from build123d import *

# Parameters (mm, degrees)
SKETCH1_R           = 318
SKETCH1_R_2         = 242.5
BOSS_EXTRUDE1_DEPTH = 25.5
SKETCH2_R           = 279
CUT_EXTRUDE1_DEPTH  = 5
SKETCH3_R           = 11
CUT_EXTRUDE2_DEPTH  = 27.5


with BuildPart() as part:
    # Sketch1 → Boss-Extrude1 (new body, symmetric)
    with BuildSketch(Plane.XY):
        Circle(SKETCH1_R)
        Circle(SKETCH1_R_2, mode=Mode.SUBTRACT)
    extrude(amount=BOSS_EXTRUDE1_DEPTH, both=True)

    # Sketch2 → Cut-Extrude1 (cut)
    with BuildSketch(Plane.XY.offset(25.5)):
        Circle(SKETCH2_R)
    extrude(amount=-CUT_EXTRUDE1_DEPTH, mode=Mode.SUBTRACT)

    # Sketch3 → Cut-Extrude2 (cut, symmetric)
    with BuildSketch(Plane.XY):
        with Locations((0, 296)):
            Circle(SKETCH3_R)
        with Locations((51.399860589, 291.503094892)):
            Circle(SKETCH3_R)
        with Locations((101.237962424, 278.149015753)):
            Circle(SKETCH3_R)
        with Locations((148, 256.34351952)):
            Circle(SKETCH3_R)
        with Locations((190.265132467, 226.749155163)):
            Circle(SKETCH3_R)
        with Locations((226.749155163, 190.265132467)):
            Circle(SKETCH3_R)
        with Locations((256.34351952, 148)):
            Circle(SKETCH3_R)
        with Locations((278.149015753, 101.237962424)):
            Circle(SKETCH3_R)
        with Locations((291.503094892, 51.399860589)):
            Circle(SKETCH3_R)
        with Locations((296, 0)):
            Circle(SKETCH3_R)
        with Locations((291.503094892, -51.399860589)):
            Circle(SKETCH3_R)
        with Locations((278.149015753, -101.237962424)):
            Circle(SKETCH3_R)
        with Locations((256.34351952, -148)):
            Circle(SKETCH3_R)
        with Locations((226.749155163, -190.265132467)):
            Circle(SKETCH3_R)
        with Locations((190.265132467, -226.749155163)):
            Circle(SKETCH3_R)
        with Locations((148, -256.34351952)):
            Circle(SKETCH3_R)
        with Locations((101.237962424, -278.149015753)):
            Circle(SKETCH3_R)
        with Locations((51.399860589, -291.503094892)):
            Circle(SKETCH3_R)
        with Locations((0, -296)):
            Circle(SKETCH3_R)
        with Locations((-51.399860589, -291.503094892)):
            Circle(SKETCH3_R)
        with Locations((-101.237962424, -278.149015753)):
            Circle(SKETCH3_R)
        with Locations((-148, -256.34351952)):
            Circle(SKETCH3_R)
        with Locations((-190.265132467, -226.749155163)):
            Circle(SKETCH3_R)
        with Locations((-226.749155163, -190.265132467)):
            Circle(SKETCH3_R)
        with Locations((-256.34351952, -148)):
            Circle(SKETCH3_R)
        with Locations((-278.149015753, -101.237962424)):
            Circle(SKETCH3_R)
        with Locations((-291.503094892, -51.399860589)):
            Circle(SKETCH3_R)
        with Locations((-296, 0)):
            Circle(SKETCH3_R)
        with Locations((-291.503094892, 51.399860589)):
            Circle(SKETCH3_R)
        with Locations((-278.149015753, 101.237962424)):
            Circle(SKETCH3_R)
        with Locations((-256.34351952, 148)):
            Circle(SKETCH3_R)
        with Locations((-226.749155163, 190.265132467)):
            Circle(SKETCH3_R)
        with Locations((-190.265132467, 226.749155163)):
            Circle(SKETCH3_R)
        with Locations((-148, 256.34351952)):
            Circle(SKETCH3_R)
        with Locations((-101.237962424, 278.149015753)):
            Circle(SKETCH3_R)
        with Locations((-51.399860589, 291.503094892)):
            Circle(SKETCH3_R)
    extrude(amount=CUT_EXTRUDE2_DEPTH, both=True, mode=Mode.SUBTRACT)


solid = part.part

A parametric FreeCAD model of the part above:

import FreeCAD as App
import Part
import Sketcher
from FreeCAD import Vector

doc = App.newDocument("Part")
params = doc.addObject("Spreadsheet::Sheet", "Params")
for row, (alias, value) in enumerate([
    ("sketch1_diameter", "636 mm"),
    ("sketch1_diameter2", "485 mm"),
    ("pad1_length", "51 mm"),
    ("sketch2_diameter", "558 mm"),
    ("pocket1_length", "5 mm"),
    ("sketch3_diameter", "22 mm"),
    ("pocket2_length", "55 mm"),
], start=1):
    params.set(f"A{row}", alias)
    params.set(f"B{row}", "=" + value)
    params.setAlias(f"B{row}", alias)

body = doc.addObject("PartDesign::Body", "Body")

# Sketch on XY plane
sketch1 = body.newObject("Sketcher::SketchObject", "Sketch")
sketch1.AttachmentSupport = (doc.getObject("XY_Plane"), [""])
sketch1.MapMode = "FlatFace"
sketch1.addGeometry(Part.Circle(Vector(0, 0, 0), Vector(0, 0, 1), 318), False)
sketch1.addGeometry(Part.Circle(Vector(0, 0, 0), Vector(0, 0, 1), 242), False)
sketch1.addConstraint(Sketcher.Constraint("Coincident", 0, 3, -1, 1))
sketch1.addConstraint(Sketcher.Constraint("Coincident", 1, 3, -1, 1))
sketch1.addConstraint(Sketcher.Constraint("Diameter", 0, 636.0))
sketch1.addConstraint(Sketcher.Constraint("Diameter", 1, 485.0))
sketch1.setExpression("Constraints[2]", "Params.sketch1_diameter")
sketch1.setExpression("Constraints[3]", "Params.sketch1_diameter2")
pad1 = body.newObject("PartDesign::Pad", "Pad")
pad1.Profile = sketch1
pad1.setExpression("Length", "Params.pad1_length")
pad1.Midplane = True

# Sketch on XY plane
sketch2 = body.newObject("Sketcher::SketchObject", "Sketch001")
sketch2.AttachmentSupport = (doc.getObject("XY_Plane"), [""])
sketch2.MapMode = "FlatFace"
sketch2.AttachmentOffset = App.Placement(Vector(0, 0, 25.5), App.Rotation())
sketch2.addGeometry(Part.Circle(Vector(0, 0, 0), Vector(0, 0, 1), 279), False)
sketch2.addConstraint(Sketcher.Constraint("Coincident", 0, 3, -1, 1))
sketch2.addConstraint(Sketcher.Constraint("Diameter", 0, 558.0))
sketch2.setExpression("Constraints[1]", "Params.sketch2_diameter")
pocket1 = body.newObject("PartDesign::Pocket", "Pocket")
pocket1.Profile = sketch2
pocket1.setExpression("Length", "Params.pocket1_length")

# Sketch on XY plane
sketch3 = body.newObject("Sketcher::SketchObject", "Sketch002")
sketch3.AttachmentSupport = (doc.getObject("XY_Plane"), [""])
sketch3.MapMode = "FlatFace"
sketch3.addGeometry(Part.Circle(Vector(0, 296, 0), Vector(0, 0, 1), 11), False)
sketch3.addGeometry(Part.Circle(Vector(51, 292, 0), Vector(0, 0, 1), 11), False)
sketch3.addGeometry(Part.Circle(Vector(101, 278, 0), Vector(0, 0, 1), 11), False)
sketch3.addGeometry(Part.Circle(Vector(148, 256, 0), Vector(0, 0, 1), 11), False)
sketch3.addGeometry(Part.Circle(Vector(190, 227, 0), Vector(0, 0, 1), 11), False)
sketch3.addGeometry(Part.Circle(Vector(227, 190, 0), Vector(0, 0, 1), 11), False)
sketch3.addGeometry(Part.Circle(Vector(256, 148, 0), Vector(0, 0, 1), 11), False)
sketch3.addGeometry(Part.Circle(Vector(278, 101, 0), Vector(0, 0, 1), 11), False)
sketch3.addGeometry(Part.Circle(Vector(292, 51, 0), Vector(0, 0, 1), 11), False)
sketch3.addGeometry(Part.Circle(Vector(296, 0, 0), Vector(0, 0, 1), 11), False)
sketch3.addGeometry(Part.Circle(Vector(292, -51, 0), Vector(0, 0, 1), 11), False)
sketch3.addGeometry(Part.Circle(Vector(278, -101, 0), Vector(0, 0, 1), 11), False)
sketch3.addGeometry(Part.Circle(Vector(256, -148, 0), Vector(0, 0, 1), 11), False)
sketch3.addGeometry(Part.Circle(Vector(227, -190, 0), Vector(0, 0, 1), 11), False)
sketch3.addGeometry(Part.Circle(Vector(190, -227, 0), Vector(0, 0, 1), 11), False)
sketch3.addGeometry(Part.Circle(Vector(148, -256, 0), Vector(0, 0, 1), 11), False)
sketch3.addGeometry(Part.Circle(Vector(101, -278, 0), Vector(0, 0, 1), 11), False)
sketch3.addGeometry(Part.Circle(Vector(51, -292, 0), Vector(0, 0, 1), 11), False)
sketch3.addGeometry(Part.Circle(Vector(0, -296, 0), Vector(0, 0, 1), 11), False)
sketch3.addGeometry(Part.Circle(Vector(-51, -292, 0), Vector(0, 0, 1), 11), False)
sketch3.addGeometry(Part.Circle(Vector(-101, -278, 0), Vector(0, 0, 1), 11), False)
sketch3.addGeometry(Part.Circle(Vector(-148, -256, 0), Vector(0, 0, 1), 11), False)
sketch3.addGeometry(Part.Circle(Vector(-190, -227, 0), Vector(0, 0, 1), 11), False)
sketch3.addGeometry(Part.Circle(Vector(-227, -190, 0), Vector(0, 0, 1), 11), False)
sketch3.addGeometry(Part.Circle(Vector(-256, -148, 0), Vector(0, 0, 1), 11), False)
sketch3.addGeometry(Part.Circle(Vector(-278, -101, 0), Vector(0, 0, 1), 11), False)
sketch3.addGeometry(Part.Circle(Vector(-292, -51, 0), Vector(0, 0, 1), 11), False)
sketch3.addGeometry(Part.Circle(Vector(-296, 0, 0), Vector(0, 0, 1), 11), False)
sketch3.addGeometry(Part.Circle(Vector(-292, 51, 0), Vector(0, 0, 1), 11), False)
sketch3.addGeometry(Part.Circle(Vector(-278, 101, 0), Vector(0, 0, 1), 11), False)
sketch3.addGeometry(Part.Circle(Vector(-256, 148, 0), Vector(0, 0, 1), 11), False)
sketch3.addGeometry(Part.Circle(Vector(-227, 190, 0), Vector(0, 0, 1), 11), False)
sketch3.addGeometry(Part.Circle(Vector(-190, 227, 0), Vector(0, 0, 1), 11), False)
sketch3.addGeometry(Part.Circle(Vector(-148, 256, 0), Vector(0, 0, 1), 11), False)
sketch3.addGeometry(Part.Circle(Vector(-101, 278, 0), Vector(0, 0, 1), 11), False)
sketch3.addGeometry(Part.Circle(Vector(-51, 292, 0), Vector(0, 0, 1), 11), False)
sketch3.addConstraint(Sketcher.Constraint("Equal", 0, 1))
sketch3.addConstraint(Sketcher.Constraint("Equal", 1, 2))
sketch3.addConstraint(Sketcher.Constraint("Equal", 2, 3))
sketch3.addConstraint(Sketcher.Constraint("Equal", 3, 4))
sketch3.addConstraint(Sketcher.Constraint("Equal", 4, 5))
sketch3.addConstraint(Sketcher.Constraint("Equal", 5, 6))
sketch3.addConstraint(Sketcher.Constraint("Equal", 6, 7))
sketch3.addConstraint(Sketcher.Constraint("Equal", 7, 8))
sketch3.addConstraint(Sketcher.Constraint("Equal", 8, 9))
sketch3.addConstraint(Sketcher.Constraint("Equal", 9, 10))
sketch3.addConstraint(Sketcher.Constraint("Equal", 10, 11))
sketch3.addConstraint(Sketcher.Constraint("Equal", 11, 12))
sketch3.addConstraint(Sketcher.Constraint("Equal", 12, 13))
sketch3.addConstraint(Sketcher.Constraint("Equal", 13, 14))
sketch3.addConstraint(Sketcher.Constraint("Equal", 14, 15))
sketch3.addConstraint(Sketcher.Constraint("Equal", 15, 16))
sketch3.addConstraint(Sketcher.Constraint("Equal", 16, 17))
sketch3.addConstraint(Sketcher.Constraint("Equal", 17, 18))
sketch3.addConstraint(Sketcher.Constraint("Equal", 18, 19))
sketch3.addConstraint(Sketcher.Constraint("Equal", 19, 20))
sketch3.addConstraint(Sketcher.Constraint("Equal", 20, 21))
sketch3.addConstraint(Sketcher.Constraint("Equal", 21, 22))
sketch3.addConstraint(Sketcher.Constraint("Equal", 22, 23))
sketch3.addConstraint(Sketcher.Constraint("Equal", 23, 24))
sketch3.addConstraint(Sketcher.Constraint("Equal", 24, 25))
sketch3.addConstraint(Sketcher.Constraint("Equal", 25, 26))
sketch3.addConstraint(Sketcher.Constraint("Equal", 26, 27))
sketch3.addConstraint(Sketcher.Constraint("Equal", 27, 28))
sketch3.addConstraint(Sketcher.Constraint("Equal", 28, 29))
sketch3.addConstraint(Sketcher.Constraint("Equal", 29, 30))
sketch3.addConstraint(Sketcher.Constraint("Equal", 30, 31))
sketch3.addConstraint(Sketcher.Constraint("Equal", 31, 32))
sketch3.addConstraint(Sketcher.Constraint("Equal", 32, 33))
sketch3.addConstraint(Sketcher.Constraint("Equal", 33, 34))
sketch3.addConstraint(Sketcher.Constraint("Equal", 34, 35))
sketch3.addConstraint(Sketcher.Constraint("Symmetric", 0, 3, 18, 3, -1, 1))
sketch3.addConstraint(Sketcher.Constraint("Symmetric", 1, 3, 19, 3, -1, 1))
sketch3.addConstraint(Sketcher.Constraint("Symmetric", 2, 3, 20, 3, -1, 1))
sketch3.addConstraint(Sketcher.Constraint("Symmetric", 3, 3, 21, 3, -1, 1))
sketch3.addConstraint(Sketcher.Constraint("Symmetric", 4, 3, 22, 3, -1, 1))
sketch3.addConstraint(Sketcher.Constraint("Symmetric", 5, 3, 23, 3, -1, 1))
sketch3.addConstraint(Sketcher.Constraint("Symmetric", 6, 3, 24, 3, -1, 1))
sketch3.addConstraint(Sketcher.Constraint("Symmetric", 7, 3, 25, 3, -1, 1))
sketch3.addConstraint(Sketcher.Constraint("Symmetric", 8, 3, 26, 3, -1, 1))
sketch3.addConstraint(Sketcher.Constraint("Symmetric", 9, 3, 27, 3, -1, 1))
sketch3.addConstraint(Sketcher.Constraint("Symmetric", 10, 3, 28, 3, -1, 1))
sketch3.addConstraint(Sketcher.Constraint("Symmetric", 11, 3, 29, 3, -1, 1))
sketch3.addConstraint(Sketcher.Constraint("Symmetric", 12, 3, 30, 3, -1, 1))
sketch3.addConstraint(Sketcher.Constraint("Symmetric", 13, 3, 31, 3, -1, 1))
sketch3.addConstraint(Sketcher.Constraint("Symmetric", 14, 3, 32, 3, -1, 1))
sketch3.addConstraint(Sketcher.Constraint("Symmetric", 15, 3, 33, 3, -1, 1))
sketch3.addConstraint(Sketcher.Constraint("Symmetric", 16, 3, 34, 3, -1, 1))
sketch3.addConstraint(Sketcher.Constraint("Symmetric", 17, 3, 35, 3, -1, 1))
sketch3.addConstraint(Sketcher.Constraint("Symmetric", 17, 3, 19, 3, -2))
sketch3.addConstraint(Sketcher.Constraint("Symmetric", 16, 3, 20, 3, -2))
sketch3.addConstraint(Sketcher.Constraint("Symmetric", 15, 3, 21, 3, -2))
sketch3.addConstraint(Sketcher.Constraint("Symmetric", 14, 3, 22, 3, -2))
sketch3.addConstraint(Sketcher.Constraint("Symmetric", 13, 3, 23, 3, -2))
sketch3.addConstraint(Sketcher.Constraint("Symmetric", 12, 3, 24, 3, -2))
sketch3.addConstraint(Sketcher.Constraint("Symmetric", 11, 3, 25, 3, -2))
sketch3.addConstraint(Sketcher.Constraint("Symmetric", 10, 3, 26, 3, -2))
sketch3.addConstraint(Sketcher.Constraint("PointOnObject", 0, 3, -2))
sketch3.addConstraint(Sketcher.Constraint("PointOnObject", 9, 3, -1))
sketch3.addConstraint(Sketcher.Constraint("Diameter", 0, 22.0))
sketch3.addConstraint(Sketcher.Constraint("DistanceY", -1, 1, 0, 3, 296.0))
sketch3.addConstraint(Sketcher.Constraint("DistanceX", -1, 1, 3, 3, 148.0))
sketch3.addConstraint(Sketcher.Constraint("DistanceY", -1, 1, 6, 3, 148.0))
sketch3.addConstraint(Sketcher.Constraint("DistanceX", -1, 1, 9, 3, 296.0))
sketch3.addConstraint(Sketcher.Constraint("DistanceX", 1, 3, 2, 3, 49.838102))
sketch3.addConstraint(Sketcher.Constraint("DistanceY", 8, 3, 7, 3, 49.838102))
sketch3.addConstraint(Sketcher.Constraint("DistanceX", -1, 1, 1, 3, 51.399861))
sketch3.addConstraint(Sketcher.Constraint("DistanceY", -1, 1, 3, 3, 256.34352))
sketch3.addConstraint(Sketcher.Constraint("DistanceX", -1, 1, 6, 3, 256.34352))
sketch3.addConstraint(Sketcher.Constraint("DistanceY", -1, 1, 8, 3, 51.399861))
sketch3.addConstraint(Sketcher.Constraint("DistanceY", 2, 3, 1, 3, 13.354079))
sketch3.addConstraint(Sketcher.Constraint("DistanceX", 2, 3, 4, 3, 89.02717))
sketch3.addConstraint(Sketcher.Constraint("DistanceY", 4, 3, 2, 3, 51.399861))
sketch3.addConstraint(Sketcher.Constraint("DistanceX", 5, 3, 7, 3, 51.399861))
sketch3.addConstraint(Sketcher.Constraint("DistanceY", 7, 3, 5, 3, 89.02717))
sketch3.addConstraint(Sketcher.Constraint("DistanceX", 7, 3, 8, 3, 13.354079))
sketch3.addConstraint(Sketcher.Constraint("DistanceY", -1, 1, 1, 3, 291.503095))
sketch3.addConstraint(Sketcher.Constraint("DistanceX", -1, 1, 5, 3, 226.749155))
sketch3.setExpression("Constraints[63]", "Params.sketch3_diameter")
pocket2 = body.newObject("PartDesign::Pocket", "Pocket001")
pocket2.Profile = sketch3
pocket2.setExpression("Length", "Params.pocket2_length")
pocket2.Midplane = True

doc.recompute()
